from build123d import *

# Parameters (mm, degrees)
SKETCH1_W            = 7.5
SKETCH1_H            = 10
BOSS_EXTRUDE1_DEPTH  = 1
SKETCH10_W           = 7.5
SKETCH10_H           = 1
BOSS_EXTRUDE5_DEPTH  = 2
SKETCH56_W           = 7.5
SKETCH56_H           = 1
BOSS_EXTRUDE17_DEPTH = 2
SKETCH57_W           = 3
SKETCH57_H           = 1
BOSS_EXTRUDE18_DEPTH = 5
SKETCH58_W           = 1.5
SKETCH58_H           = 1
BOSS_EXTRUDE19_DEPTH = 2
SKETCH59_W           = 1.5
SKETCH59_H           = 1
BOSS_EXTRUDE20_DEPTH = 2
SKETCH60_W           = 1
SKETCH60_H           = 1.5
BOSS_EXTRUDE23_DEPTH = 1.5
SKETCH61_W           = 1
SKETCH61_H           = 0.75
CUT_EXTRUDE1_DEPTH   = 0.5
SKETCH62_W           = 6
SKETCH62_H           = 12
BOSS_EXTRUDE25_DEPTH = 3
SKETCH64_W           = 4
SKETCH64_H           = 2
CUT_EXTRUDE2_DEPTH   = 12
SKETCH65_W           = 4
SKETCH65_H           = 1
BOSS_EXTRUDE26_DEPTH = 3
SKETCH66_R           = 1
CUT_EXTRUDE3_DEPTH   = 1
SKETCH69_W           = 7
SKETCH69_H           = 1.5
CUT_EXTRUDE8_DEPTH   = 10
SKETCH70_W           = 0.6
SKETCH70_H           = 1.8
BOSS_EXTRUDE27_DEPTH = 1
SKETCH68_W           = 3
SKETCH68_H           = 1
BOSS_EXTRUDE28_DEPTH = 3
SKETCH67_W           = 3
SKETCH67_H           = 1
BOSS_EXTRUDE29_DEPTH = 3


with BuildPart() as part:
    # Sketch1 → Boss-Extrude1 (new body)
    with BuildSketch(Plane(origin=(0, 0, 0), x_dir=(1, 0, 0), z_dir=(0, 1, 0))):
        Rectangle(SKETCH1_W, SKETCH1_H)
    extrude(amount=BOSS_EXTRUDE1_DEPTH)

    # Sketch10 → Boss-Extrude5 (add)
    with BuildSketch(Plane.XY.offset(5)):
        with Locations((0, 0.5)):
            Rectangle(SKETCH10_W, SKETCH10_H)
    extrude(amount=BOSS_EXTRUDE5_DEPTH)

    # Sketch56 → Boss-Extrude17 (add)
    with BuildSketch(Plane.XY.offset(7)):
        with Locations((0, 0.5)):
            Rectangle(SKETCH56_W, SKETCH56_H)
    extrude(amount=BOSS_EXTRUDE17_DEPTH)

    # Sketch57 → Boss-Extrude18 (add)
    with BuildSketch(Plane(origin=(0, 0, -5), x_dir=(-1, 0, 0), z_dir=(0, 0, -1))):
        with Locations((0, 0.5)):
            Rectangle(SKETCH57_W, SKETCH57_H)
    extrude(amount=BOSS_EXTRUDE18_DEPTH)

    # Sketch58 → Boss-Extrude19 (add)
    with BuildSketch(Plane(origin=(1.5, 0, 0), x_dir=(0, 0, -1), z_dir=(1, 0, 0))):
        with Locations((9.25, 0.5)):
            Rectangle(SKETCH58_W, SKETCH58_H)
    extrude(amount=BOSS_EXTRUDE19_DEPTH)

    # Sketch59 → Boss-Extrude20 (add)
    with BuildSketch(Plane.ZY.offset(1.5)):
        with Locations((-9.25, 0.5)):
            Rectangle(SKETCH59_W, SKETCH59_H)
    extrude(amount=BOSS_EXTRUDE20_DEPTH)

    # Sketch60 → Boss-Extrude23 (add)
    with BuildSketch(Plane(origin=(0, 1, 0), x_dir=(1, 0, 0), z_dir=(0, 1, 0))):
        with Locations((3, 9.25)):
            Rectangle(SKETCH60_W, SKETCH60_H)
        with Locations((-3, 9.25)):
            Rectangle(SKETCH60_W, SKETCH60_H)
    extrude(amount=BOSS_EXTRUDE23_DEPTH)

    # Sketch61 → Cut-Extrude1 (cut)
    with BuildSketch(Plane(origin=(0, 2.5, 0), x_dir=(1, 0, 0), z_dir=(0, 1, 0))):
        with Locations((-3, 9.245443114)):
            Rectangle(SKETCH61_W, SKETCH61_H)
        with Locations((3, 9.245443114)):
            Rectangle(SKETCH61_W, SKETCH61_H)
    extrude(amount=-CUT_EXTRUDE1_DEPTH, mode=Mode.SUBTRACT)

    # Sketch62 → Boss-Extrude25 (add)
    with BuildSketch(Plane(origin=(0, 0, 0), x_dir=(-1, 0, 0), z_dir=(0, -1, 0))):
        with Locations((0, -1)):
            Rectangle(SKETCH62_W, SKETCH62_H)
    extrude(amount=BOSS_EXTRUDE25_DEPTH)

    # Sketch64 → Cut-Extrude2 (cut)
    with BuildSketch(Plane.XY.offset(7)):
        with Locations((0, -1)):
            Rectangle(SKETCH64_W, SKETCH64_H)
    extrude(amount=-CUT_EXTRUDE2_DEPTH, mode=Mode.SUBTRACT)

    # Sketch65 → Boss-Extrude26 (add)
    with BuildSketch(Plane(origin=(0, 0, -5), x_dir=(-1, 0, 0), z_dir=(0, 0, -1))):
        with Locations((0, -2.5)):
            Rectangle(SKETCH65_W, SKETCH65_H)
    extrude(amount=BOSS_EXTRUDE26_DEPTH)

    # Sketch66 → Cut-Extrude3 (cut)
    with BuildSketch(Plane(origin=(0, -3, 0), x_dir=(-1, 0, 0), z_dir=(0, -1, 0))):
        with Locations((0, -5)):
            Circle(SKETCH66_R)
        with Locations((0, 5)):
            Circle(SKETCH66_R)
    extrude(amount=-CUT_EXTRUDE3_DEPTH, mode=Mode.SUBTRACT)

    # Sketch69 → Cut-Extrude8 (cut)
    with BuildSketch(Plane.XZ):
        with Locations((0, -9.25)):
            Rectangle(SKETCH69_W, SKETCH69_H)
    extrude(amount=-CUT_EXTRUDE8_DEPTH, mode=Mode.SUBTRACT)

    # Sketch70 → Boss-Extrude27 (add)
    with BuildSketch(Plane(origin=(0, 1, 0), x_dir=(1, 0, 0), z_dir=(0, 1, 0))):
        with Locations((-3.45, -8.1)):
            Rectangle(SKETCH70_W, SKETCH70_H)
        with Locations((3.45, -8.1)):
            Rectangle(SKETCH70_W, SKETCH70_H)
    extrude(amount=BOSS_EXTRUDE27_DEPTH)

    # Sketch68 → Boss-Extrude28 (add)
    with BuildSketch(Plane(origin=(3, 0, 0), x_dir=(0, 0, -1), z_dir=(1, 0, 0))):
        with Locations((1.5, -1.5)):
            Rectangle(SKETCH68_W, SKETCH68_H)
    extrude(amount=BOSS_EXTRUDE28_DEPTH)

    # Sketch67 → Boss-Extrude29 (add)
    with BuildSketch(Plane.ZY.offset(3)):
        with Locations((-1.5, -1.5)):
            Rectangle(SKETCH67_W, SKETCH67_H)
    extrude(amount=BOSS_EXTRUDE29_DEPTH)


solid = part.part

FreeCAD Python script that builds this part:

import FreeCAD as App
import Part
import Sketcher
Q = App.Units.Quantity


def add_polygon(sketch, points):
    """Adds a closed chain of lines whose ends are joined by coincident constraints."""
    first, n = sketch.GeometryCount, len(points)
    for a, b in zip(points, points[1:] + points[:1]):
        sketch.addGeometry(Part.LineSegment(App.Vector(*a, 0), App.Vector(*b, 0)), False)
    for i in range(n):
        sketch.addConstraint(Sketcher.Constraint("Coincident", first + i, 2, first + (i + 1) % n, 1))

doc = App.newDocument("Part")
params = doc.addObject("Spreadsheet::Sheet", "Params")
for row, (alias, value) in enumerate([
    ("sketch1_height", "10 mm"),
    ("sketch1_width", "7.5 mm"),
    ("pad1_length", "1 mm"),
    ("sketch2_height", "1 mm"),
    ("sketch2_width", "7.5 mm"),
    ("pad2_length", "2 mm"),
    ("sketch3_height", "1 mm"),
    ("sketch3_width", "7.5 mm"),
    ("pad3_length", "2 mm"),
    ("sketch4_width", "3 mm"),
    ("sketch4_height", "1 mm"),
    ("pad4_length", "5 mm"),
    ("sketch5_width", "1 mm"),
    ("sketch5_height", "1.5 mm"),
    ("pad5_length", "2 mm"),
    ("sketch6_width", "1 mm"),
    ("sketch6_height", "1.5 mm"),
    ("pad6_length", "2 mm"),
    ("sketch7_width", "1 mm"),
    ("sketch7_height", "1.5 mm"),
    ("pad7_length", "1.5 mm"),
    ("sketch8_width", "1 mm"),
    ("sketch8_height", "0.75 mm"),
    ("pocket1_length", "0.5 mm"),
    ("sketch9_width", "6 mm"),
    ("sketch9_height", "12 mm"),
    ("pad8_length", "3 mm"),
    ("sketch10_width", "4 mm"),
    ("sketch10_height", "2 mm"),
    ("pocket2_length", "12 mm"),
    ("sketch11_width", "4 mm"),
    ("sketch11_height", "1 mm"),
    ("pad9_length", "3 mm"),
    ("sketch12_diameter", "2 mm"),
    ("pocket3_length", "1 mm"),
    ("sketch13_width", "7 mm"),
    ("sketch13_height", "1.5 mm"),
    ("pocket4_length", "10 mm"),
    ("sketch14_width", "0.6 mm"),
    ("sketch14_height", "1.8 mm"),
    ("pad10_length", "1 mm"),
    ("sketch15_width", "1 mm"),
    ("sketch15_height", "3 mm"),
    ("pad11_length", "3 mm"),
    ("sketch16_width", "1 mm"),
    ("sketch16_height", "3 mm"),
    ("pad12_length", "3 mm"),
], start=1):
    params.set(f"A{row}", alias)
    params.set(f"B{row}", "=" + value)
    params.setAlias(f"B{row}", alias)

body = doc.addObject("PartDesign::Body", "Body")

# Sketch on XZ plane
sketch1 = doc.addObject("Sketcher::SketchObject", "Sketch")
body.addObject(sketch1)
sketch1.AttachmentSupport = (doc.XZ_Plane, [""])
sketch1.MapMode = "FlatFace"
add_polygon(sketch1, [(-4, -5), (-4, 5), (4, 5), (4, -5)])  # lines 0-3
sketch1.addConstraint([
    Sketcher.Constraint("Vertical", 0),
    Sketcher.Constraint("Horizontal", 1),
    Sketcher.Constraint("Vertical", 2),
    Sketcher.Constraint("Horizontal", 3),
    Sketcher.Constraint("Symmetric", 0, 2, 2, 2, -1, 1),
    Sketcher.Constraint("DistanceY", 0, 1, 0, 2, Q("10 mm")),
    Sketcher.Constraint("DistanceX", 1, 1, 1, 2, Q("7.5 mm")),
])
sketch1.setExpression("Constraints[9]", "Params.sketch1_height")
sketch1.setExpression("Constraints[10]", "Params.sketch1_width")
pad1 = doc.addObject("PartDesign::Pad", "Pad")
body.addObject(pad1)
pad1.Profile = sketch1
pad1.setExpression("Length", "Params.pad1_length")
pad1.Reversed = True

# Sketch on XY plane
sketch2 = doc.addObject("Sketcher::SketchObject", "Sketch001")
body.addObject(sketch2)
sketch2.AttachmentSupport = (doc.XY_Plane, [""])
sketch2.MapMode = "FlatFace"
sketch2.AttachmentOffset = App.Placement(App.Vector(0, 0, 5), App.Rotation())
add_polygon(sketch2, [(-3.8, 1), (-3.8, 0), (3.8, 0), (3.8, 1)])  # lines 0-3
sketch2.addConstraint([
    Sketcher.Constraint("Vertical", 0),
    Sketcher.Constraint("Horizontal", 1),
    Sketcher.Constraint("Vertical", 2),
    Sketcher.Constraint("Horizontal", 3),
    Sketcher.Constraint("Symmetric", 0, 2, 1, 2, -1, 1),
    Sketcher.Constraint("DistanceY", 0, 2, 0, 1, Q("1 mm")),
    Sketcher.Constraint("DistanceX", 1, 1, 1, 2, Q("7.5 mm")),
])
sketch2.setExpression("Constraints[9]", "Params.sketch2_height")
sketch2.setExpression("Constraints[10]", "Params.sketch2_width")
pad2 = doc.addObject("PartDesign::Pad", "Pad001")
body.addObject(pad2)
pad2.Profile = sketch2
pad2.setExpression("Length", "Params.pad2_length")

# Sketch on XY plane
sketch3 = doc.addObject("Sketcher::SketchObject", "Sketch002")
body.addObject(sketch3)
sketch3.AttachmentSupport = (doc.XY_Plane, [""])
sketch3.MapMode = "FlatFace"
sketch3.AttachmentOffset = App.Placement(App.Vector(0, 0, 7), App.Rotation())
add_polygon(sketch3, [(-3.8, 1), (-3.8, 0), (3.8, 0), (3.8, 1)])  # lines 0-3
sketch3.addConstraint([
    Sketcher.Constraint("Vertical", 0),
    Sketcher.Constraint("Horizontal", 1),
    Sketcher.Constraint("Vertical", 2),
    Sketcher.Constraint("Horizontal", 3),
    Sketcher.Constraint("Symmetric", 0, 2, 1, 2, -1, 1),
    Sketcher.Constraint("DistanceY", 0, 2, 0, 1, Q("1 mm")),
    Sketcher.Constraint("DistanceX", 1, 1, 1, 2, Q("7.5 mm")),
])
sketch3.setExpression("Constraints[9]", "Params.sketch3_height")
sketch3.setExpression("Constraints[10]", "Params.sketch3_width")
pad3 = doc.addObject("PartDesign::Pad", "Pad002")
body.addObject(pad3)
pad3.Profile = sketch3
pad3.setExpression("Length", "Params.pad3_length")

# Sketch on XY plane
sketch4 = doc.addObject("Sketcher::SketchObject", "Sketch003")
body.addObject(sketch4)
sketch4.AttachmentSupport = (doc.XY_Plane, [""])
sketch4.MapMode = "FlatFace"
sketch4.AttachmentOffset = App.Placement(App.Vector(0, 0, -5), App.Rotation())
add_polygon(sketch4, [(1.5, 1), (1.5, 0), (-1.5, 0), (-1.5, 1)])  # lines 0-3
sketch4.addConstraint([
    Sketcher.Constraint("Vertical", 0),
    Sketcher.Constraint("Horizontal", 1),
    Sketcher.Constraint("Vertical", 2),
    Sketcher.Constraint("Horizontal", 3),
    Sketcher.Constraint("Symmetric", 0, 2, 1, 2, -1, 1),
    Sketcher.Constraint("DistanceX", 1, 2, 1, 1, Q("3 mm")),
    Sketcher.Constraint("DistanceY", 0, 2, 0, 1, Q("1 mm")),
])
sketch4.setExpression("Constraints[9]", "Params.sketch4_width")
sketch4.setExpression("Constraints[10]", "Params.sketch4_height")
pad4 = doc.addObject("PartDesign::Pad", "Pad003")
body.addObject(pad4)
pad4.Profile = sketch4
pad4.setExpression("Length", "Params.pad4_length")
pad4.Reversed = True

# Sketch on YZ plane
sketch5 = doc.addObject("Sketcher::SketchObject", "Sketch004")
body.addObject(sketch5)
sketch5.AttachmentSupport = (doc.YZ_Plane, [""])
sketch5.MapMode = "FlatFace"
sketch5.AttachmentOffset = App.Placement(App.Vector(0, 0, 1.5), App.Rotation())
add_polygon(sketch5, [(1, -8.5), (0, -8.5), (0, -10), (1, -10)])  # lines 0-3
sketch5.addConstraint([
    Sketcher.Constraint("Horizontal", 0),
    Sketcher.Constraint("Vertical", 1),
    Sketcher.Constraint("Horizontal", 2),
    Sketcher.Constraint("Vertical", 3),
    Sketcher.Constraint("PointOnObject", 0, 2, -2),
    Sketcher.Constraint("DistanceX", 0, 2, 0, 1, Q("1 mm")),
    Sketcher.Constraint("DistanceY", 1, 2, 1, 1, Q("1.5 mm")),
    Sketcher.Constraint("DistanceY", 1, 2, -1, 1, Q("10 mm")),
])
sketch5.setExpression("Constraints[9]", "Params.sketch5_width")
sketch5.setExpression("Constraints[10]", "Params.sketch5_height")
pad5 = doc.addObject("PartDesign::Pad", "Pad004")
body.addObject(pad5)
pad5.Profile = sketch5
pad5.setExpression("Length", "Params.pad5_length")

# Sketch on YZ plane
sketch6 = doc.addObject("Sketcher::SketchObject", "Sketch005")
body.addObject(sketch6)
sketch6.AttachmentSupport = (doc.YZ_Plane, [""])
sketch6.MapMode = "FlatFace"
sketch6.AttachmentOffset = App.Placement(App.Vector(0, 0, -1.5), App.Rotation())
add_polygon(sketch6, [(1, -10), (0, -10), (0, -8.5), (1, -8.5)])  # lines 0-3
sketch6.addConstraint([
    Sketcher.Constraint("Horizontal", 0),
    Sketcher.Constraint("Vertical", 1),
    Sketcher.Constraint("Horizontal", 2),
    Sketcher.Constraint("Vertical", 3),
    Sketcher.Constraint("PointOnObject", 0, 2, -2),
    Sketcher.Constraint("DistanceX", 0, 2, 0, 1, Q("1 mm")),
    Sketcher.Constraint("DistanceY", 1, 1, 1, 2, Q("1.5 mm")),
    Sketcher.Constraint("DistanceY", 0, 2, -1, 1, Q("10 mm")),
])
sketch6.setExpression("Constraints[9]", "Params.sketch6_width")
sketch6.setExpression("Constraints[10]", "Params.sketch6_height")
pad6 = doc.addObject("PartDesign::Pad", "Pad005")
body.addObject(pad6)
pad6.Profile = sketch6
pad6.setExpression("Length", "Params.pad6_length")
pad6.Reversed = True

# Sketch on XZ plane
sketch7 = doc.addObject("Sketcher::SketchObject", "Sketch006")
body.addObject(sketch7)
sketch7.AttachmentSupport = (doc.XZ_Plane, [""])
sketch7.MapMode = "FlatFace"
sketch7.AttachmentOffset = App.Placement(App.Vector(0, 0, -1), App.Rotation())
add_polygon(sketch7, [(2.5, -10), (2.5, -8.5), (3.5, -8.5), (3.5, -10)])  # lines 0-3
add_polygon(sketch7, [(-3.5, -10), (-3.5, -8.5), (-2.5, -8.5), (-2.5, -10)])  # lines 4-7
sketch7.addConstraint([
    Sketcher.Constraint("Vertical", 0),
    Sketcher.Constraint("Horizontal", 1),
    Sketcher.Constraint("Vertical", 2),
    Sketcher.Constraint("Horizontal", 3),
    Sketcher.Constraint("Vertical", 4),
    Sketcher.Constraint("Horizontal", 5),
    Sketcher.Constraint("Vertical", 6),
    Sketcher.Constraint("Horizontal", 7),
    Sketcher.Constraint("Symmetric", 1, 2, 4, 2, -2),
    Sketcher.Constraint("Symmetric", 3, 2, 6, 2, -2),
    Sketcher.Constraint("DistanceX", 1, 1, 1, 2, Q("1 mm")),
    Sketcher.Constraint("DistanceY", 0, 1, 0, 2, Q("1.5 mm")),
    Sketcher.Constraint("DistanceY", 2, 2, -1, 1, Q("10 mm")),
    Sketcher.Constraint("DistanceX", 4, 2, 0, 2, Q("6 mm")),
])
sketch7.setExpression("Constraints[18]", "Params.sketch7_width")
sketch7.setExpression("Constraints[19]", "Params.sketch7_height")
pad7 = doc.addObject("PartDesign::Pad", "Pad006")
body.addObject(pad7)
pad7.Profile = sketch7
pad7.setExpression("Length", "Params.pad7_length")
pad7.Reversed = True

# Sketch on XZ plane
sketch8 = doc.addObject("Sketcher::SketchObject", "Sketch007")
body.addObject(sketch8)
sketch8.AttachmentSupport = (doc.XZ_Plane, [""])
sketch8.MapMode = "FlatFace"
sketch8.AttachmentOffset = App.Placement(App.Vector(0, 0, -2.5), App.Rotation())
add_polygon(sketch8, [(-3.5, -9.6), (-3.5, -8.9), (-2.5, -8.9), (-2.5, -9.6)])  # lines 0-3
add_polygon(sketch8, [(2.5, -9.6), (2.5, -8.9), (3.5, -8.9), (3.5, -9.6)])  # lines 4-7
sketch8.addConstraint([
    Sketcher.Constraint("Vertical", 0),
    Sketcher.Constraint("Horizontal", 1),
    Sketcher.Constraint("Vertical", 2),
    Sketcher.Constraint("Horizontal", 3),
    Sketcher.Constraint("Vertical", 4),
    Sketcher.Constraint("Horizontal", 5),
    Sketcher.Constraint("Vertical", 6),
    Sketcher.Constraint("Horizontal", 7),
    Sketcher.Constraint("Symmetric", 1, 2, 4, 2, -2),
    Sketcher.Constraint("Symmetric", 3, 2, 6, 2, -2),
    Sketcher.Constraint("DistanceX", 1, 1, 1, 2, Q("1 mm")),
    Sketcher.Constraint("DistanceX", 1, 2, 4, 2, Q("5 mm")),
    Sketcher.Constraint("DistanceY", 0, 1, 0, 2, Q("0.75 mm")),
    Sketcher.Constraint("DistanceY", 0, 2, -1, 1, Q("8.870443 mm")),
])
sketch8.setExpression("Constraints[18]", "Params.sketch8_width")
sketch8.setExpression("Constraints[20]", "Params.sketch8_height")
pocket1 = doc.addObject("PartDesign::Pocket", "Pocket")
body.addObject(pocket1)
pocket1.Profile = sketch8
pocket1.setExpression("Length", "Params.pocket1_length")
pocket1.Reversed = True

# Sketch on XZ plane
sketch9 = doc.addObject("Sketcher::SketchObject", "Sketch008")
body.addObject(sketch9)
sketch9.AttachmentSupport = (doc.XZ_Plane, [""])
sketch9.MapMode = "FlatFace"
add_polygon(sketch9, [(3, -5), (3, 7), (-3, 7), (-3, -5)])  # lines 0-3
sketch9.addConstraint([
    Sketcher.Constraint("Vertical", 0),
    Sketcher.Constraint("Horizontal", 1),
    Sketcher.Constraint("Vertical", 2),
    Sketcher.Constraint("Horizontal", 3),
    Sketcher.Constraint("DistanceX", 1, 2, 1, 1, Q("6 mm")),
    Sketcher.Constraint("DistanceY", 0, 1, 0, 2, Q("12 mm")),
    Sketcher.Constraint("DistanceX", -1, 1, 0, 2, Q("3 mm")),
    Sketcher.Constraint("DistanceY", -1, 1, 0, 2, Q("7 mm")),
])
sketch9.setExpression("Constraints[8]", "Params.sketch9_width")
sketch9.setExpression("Constraints[9]", "Params.sketch9_height")
pad8 = doc.addObject("PartDesign::Pad", "Pad007")
body.addObject(pad8)
pad8.Profile = sketch9
pad8.setExpression("Length", "Params.pad8_length")

# Sketch on XY plane
sketch10 = doc.addObject("Sketcher::SketchObject", "Sketch009")
body.addObject(sketch10)
sketch10.AttachmentSupport = (doc.XY_Plane, [""])
sketch10.MapMode = "FlatFace"
sketch10.AttachmentOffset = App.Placement(App.Vector(0, 0, 7), App.Rotation())
add_polygon(sketch10, [(-2, 0), (-2, -2), (2, -2), (2, 0)])  # lines 0-3
sketch10.addConstraint([
    Sketcher.Constraint("Vertical", 0),
    Sketcher.Constraint("Horizontal", 1),
    Sketcher.Constraint("Vertical", 2),
    Sketcher.Constraint("Horizontal", 3),
    Sketcher.Constraint("Symmetric", 2, 2, 3, 2, -1, 1),
    Sketcher.Constraint("DistanceX", 1, 1, 1, 2, Q("4 mm")),
    Sketcher.Constraint("DistanceY", 0, 2, 0, 1, Q("2 mm")),
])
sketch10.setExpression("Constraints[9]", "Params.sketch10_width")
sketch10.setExpression("Constraints[10]", "Params.sketch10_height")
pocket2 = doc.addObject("PartDesign::Pocket", "Pocket001")
body.addObject(pocket2)
pocket2.Profile = sketch10
pocket2.setExpression("Length", "Params.pocket2_length")

# Sketch on XY plane
sketch11 = doc.addObject("Sketcher::SketchObject", "Sketch010")
body.addObject(sketch11)
sketch11.AttachmentSupport = (doc.XY_Plane, [""])
sketch11.MapMode = "FlatFace"
sketch11.AttachmentOffset = App.Placement(App.Vector(0, 0, -5), App.Rotation())
add_polygon(sketch11, [(2, -2), (2, -3), (-2, -3), (-2, -2)])  # lines 0-3
sketch11.addConstraint([
    Sketcher.Constraint("Vertical", 0),
    Sketcher.Constraint("Horizontal", 1),
    Sketcher.Constraint("Vertical", 2),
    Sketcher.Constraint("Horizontal", 3),
    Sketcher.Constraint("DistanceX", 1, 2, 1, 1, Q("4 mm")),
    Sketcher.Constraint("DistanceY", 0, 2, 0, 1, Q("1 mm")),
    Sketcher.Constraint("DistanceX", -1, 1, 0, 2, Q("2 mm")),
    Sketcher.Constraint("DistanceY", 0, 2, -1, 1, Q("3 mm")),
])
sketch11.setExpression("Constraints[8]", "Params.sketch11_width")
sketch11.setExpression("Constraints[9]", "Params.sketch11_height")
pad9 = doc.addObject("PartDesign::Pad", "Pad008")
body.addObject(pad9)
pad9.Profile = sketch11
pad9.setExpression("Length", "Params.pad9_length")
pad9.Reversed = True

# Sketch on XZ plane
sketch12 = doc.addObject("Sketcher::SketchObject", "Sketch011")
body.addObject(sketch12)
sketch12.AttachmentSupport = (doc.XZ_Plane, [""])
sketch12.MapMode = "FlatFace"
sketch12.AttachmentOffset = App.Placement(App.Vector(0, 0, 3), App.Rotation())
sketch12.addGeometry([
    Part.Circle(App.Vector(0, 5, 0), App.Vector(0, 0, 1), 1),
    Part.Circle(App.Vector(0, -5, 0), App.Vector(0, 0, 1), 1),
], False)
sketch12.addConstraint([
    Sketcher.Constraint("Equal", 0, 1),
    Sketcher.Constraint("Symmetric", 0, 3, 1, 3, -1, 1),
    Sketcher.Constraint("PointOnObject", 0, 3, -2),
    Sketcher.Constraint("Diameter", 0, Q("2 mm")),
    Sketcher.Constraint("DistanceY", -1, 1, 0, 3, Q("5 mm")),
])
sketch12.setExpression("Constraints[3]", "Params.sketch12_diameter")
pocket3 = doc.addObject("PartDesign::Pocket", "Pocket002")
body.addObject(pocket3)
pocket3.Profile = sketch12
pocket3.setExpression("Length", "Params.pocket3_length")

# Sketch on XZ plane
sketch13 = doc.addObject("Sketcher::SketchObject", "Sketch012")
body.addObject(sketch13)
sketch13.AttachmentSupport = (doc.XZ_Plane, [""])
sketch13.MapMode = "FlatFace"
add_polygon(sketch13, [(-3.5, -8.5), (-3.5, -10), (3.5, -10), (3.5, -8.5)])  # lines 0-3
sketch13.addConstraint([
    Sketcher.Constraint("Vertical", 0),
    Sketcher.Constraint("Horizontal", 1),
    Sketcher.Constraint("Vertical", 2),
    Sketcher.Constraint("Horizontal", 3),
    Sketcher.Constraint("DistanceX", 1, 1, 1, 2, Q("7 mm")),
    Sketcher.Constraint("DistanceY", 0, 2, 0, 1, Q("1.5 mm")),
    Sketcher.Constraint("DistanceY", 0, 2, -1, 1, Q("10 mm")),
    Sketcher.Constraint("DistanceX", 0, 2, -1, 1, Q("3.5 mm")),
])
sketch13.setExpression("Constraints[8]", "Params.sketch13_width")
sketch13.setExpression("Constraints[9]", "Params.sketch13_height")
pocket4 = doc.addObject("PartDesign::Pocket", "Pocket003")
body.addObject(pocket4)
pocket4.Profile = sketch13
pocket4.setExpression("Length", "Params.pocket4_length")

# Sketch on XZ plane
sketch14 = doc.addObject("Sketcher::SketchObject", "Sketch013")
body.addObject(sketch14)
sketch14.AttachmentSupport = (doc.XZ_Plane, [""])
sketch14.MapMode = "FlatFace"
sketch14.AttachmentOffset = App.Placement(App.Vector(0, 0, -1), App.Rotation())
add_polygon(sketch14, [(-3.8, 7.2), (-3.8, 9), (-3.1, 9), (-3.1, 7.2)])  # lines 0-3
add_polygon(sketch14, [(3.1, 7.2), (3.1, 9), (3.8, 9), (3.8, 7.2)])  # lines 4-7
sketch14.addConstraint([
    Sketcher.Constraint("Vertical", 0),
    Sketcher.Constraint("Horizontal", 1),
    Sketcher.Constraint("Vertical", 2),
    Sketcher.Constraint("Horizontal", 3),
    Sketcher.Constraint("Vertical", 4),
    Sketcher.Constraint("Horizontal", 5),
    Sketcher.Constraint("Vertical", 6),
    Sketcher.Constraint("Horizontal", 7),
    Sketcher.Constraint("Symmetric", 1, 2, 4, 2, -2),
    Sketcher.Constraint("Symmetric", 3, 2, 6, 2, -2),
    Sketcher.Constraint("DistanceX", 1, 1, 1, 2, Q("0.6 mm")),
    Sketcher.Constraint("DistanceY", 0, 1, 0, 2, Q("1.8 mm")),
    Sketcher.Constraint("DistanceY", -1, 1, 0, 2, Q("9 mm")),
    Sketcher.Constraint("DistanceX", 1, 2, 4, 2, Q("6.3 mm")),
])
sketch14.setExpression("Constraints[18]", "Params.sketch14_width")
sketch14.setExpression("Constraints[19]", "Params.sketch14_height")
pad10 = doc.addObject("PartDesign::Pad", "Pad009")
body.addObject(pad10)
pad10.Profile = sketch14
pad10.setExpression("Length", "Params.pad10_length")
pad10.Reversed = True

# Sketch on YZ plane
sketch15 = doc.addObject("Sketcher::SketchObject", "Sketch014")
body.addObject(sketch15)
sketch15.AttachmentSupport = (doc.YZ_Plane, [""])
sketch15.MapMode = "FlatFace"
sketch15.AttachmentOffset = App.Placement(App.Vector(0, 0, 3), App.Rotation())
add_polygon(sketch15, [(-1, 0), (-2, 0), (-2, -3), (-1, -3)])  # lines 0-3
sketch15.addConstraint([
    Sketcher.Constraint("Horizontal", 0),
    Sketcher.Constraint("Vertical", 1),
    Sketcher.Constraint("Horizontal", 2),
    Sketcher.Constraint("Vertical", 3),
    Sketcher.Constraint("PointOnObject", 0, 2, -1),
    Sketcher.Constraint("DistanceX", 0, 2, 0, 1, Q("1 mm")),
    Sketcher.Constraint("DistanceY", 1, 2, 1, 1, Q("3 mm")),
    Sketcher.Constraint("DistanceX", 0, 2, -1, 1, Q("2 mm")),
])
sketch15.setExpression("Constraints[9]", "Params.sketch15_width")
sketch15.setExpression("Constraints[10]", "Params.sketch15_height")
pad11 = doc.addObject("PartDesign::Pad", "Pad010")
body.addObject(pad11)
pad11.Profile = sketch15
pad11.setExpression("Length", "Params.pad11_length")

# Sketch on YZ plane
sketch16 = doc.addObject("Sketcher::SketchObject", "Sketch015")
body.addObject(sketch16)
sketch16.AttachmentSupport = (doc.YZ_Plane, [""])
sketch16.MapMode = "FlatFace"
sketch16.AttachmentOffset = App.Placement(App.Vector(0, 0, -3), App.Rotation())
add_polygon(sketch16, [(-1, -3), (-2, -3), (-2, 0), (-1, 0)])  # lines 0-3
sketch16.addConstraint([
    Sketcher.Constraint("Horizontal", 0),
    Sketcher.Constraint("Vertical", 1),
    Sketcher.Constraint("Horizontal", 2),
    Sketcher.Constraint("Vertical", 3),
    Sketcher.Constraint("PointOnObject", 1, 2, -1),
    Sketcher.Constraint("DistanceX", 0, 2, 0, 1, Q("1 mm")),
    Sketcher.Constraint("DistanceY", 1, 1, 1, 2, Q("3 mm")),
    Sketcher.Constraint("DistanceX", 0, 2, -1, 1, Q("2 mm")),
])
sketch16.setExpression("Constraints[9]", "Params.sketch16_width")
sketch16.setExpression("Constraints[10]", "Params.sketch16_height")
pad12 = doc.addObject("PartDesign::Pad", "Pad011")
body.addObject(pad12)
pad12.Profile = sketch16
pad12.setExpression("Length", "Params.pad12_length")
pad12.Reversed = True

doc.recompute()
